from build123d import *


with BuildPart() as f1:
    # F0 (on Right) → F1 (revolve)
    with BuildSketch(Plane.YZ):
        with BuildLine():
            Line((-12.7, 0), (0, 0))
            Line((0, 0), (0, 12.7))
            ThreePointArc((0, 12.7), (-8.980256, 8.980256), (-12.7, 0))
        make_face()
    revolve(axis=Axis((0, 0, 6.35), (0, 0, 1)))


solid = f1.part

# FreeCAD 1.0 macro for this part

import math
import FreeCAD as App
import Part
import Sketcher
Q = App.Units.Quantity

doc = App.newDocument("Part")
body = doc.addObject("PartDesign::Body", "Body")

sketch1 = body.newObject("Sketcher::SketchObject", "Sketch")
sketch1.AttachmentSupport = (doc.getObject("YZ_Plane"), [""])
sketch1.MapMode = "FlatFace"
sketch1.addGeometry([
    Part.LineSegment(App.Vector(-13, 0, 0), App.Vector(0, 0, 0)),
    Part.LineSegment(App.Vector(0, 0, 0), App.Vector(0, 13, 0)),
    Part.ArcOfCircle(Part.Circle(App.Vector(0, 0, 0), App.Vector(0, 0, 1), 13), math.radians(90), math.radians(180)),
], False)
sketch1.addConstraint([
    Sketcher.Constraint("Coincident", 0, 2, 1, 1),
    Sketcher.Constraint("Coincident", 1, 2, 2, 1),
    Sketcher.Constraint("Coincident", 2, 2, 0, 1),
    Sketcher.Constraint("Horizontal", 0),
    Sketcher.Constraint("Vertical", 1),
    Sketcher.Constraint("Coincident", 2, 3, -1, 1),
    Sketcher.Constraint("Coincident", 0, 2, -1, 1),
    Sketcher.Constraint("Radius", 2, Q("0.5 in")),
])
revolution = body.newObject("PartDesign::Revolution", "Revolution")
revolution.Profile = sketch1
revolution.ReferenceAxis = (sketch1, ["V_Axis"])
revolution.Angle = 360

doc.recompute()
